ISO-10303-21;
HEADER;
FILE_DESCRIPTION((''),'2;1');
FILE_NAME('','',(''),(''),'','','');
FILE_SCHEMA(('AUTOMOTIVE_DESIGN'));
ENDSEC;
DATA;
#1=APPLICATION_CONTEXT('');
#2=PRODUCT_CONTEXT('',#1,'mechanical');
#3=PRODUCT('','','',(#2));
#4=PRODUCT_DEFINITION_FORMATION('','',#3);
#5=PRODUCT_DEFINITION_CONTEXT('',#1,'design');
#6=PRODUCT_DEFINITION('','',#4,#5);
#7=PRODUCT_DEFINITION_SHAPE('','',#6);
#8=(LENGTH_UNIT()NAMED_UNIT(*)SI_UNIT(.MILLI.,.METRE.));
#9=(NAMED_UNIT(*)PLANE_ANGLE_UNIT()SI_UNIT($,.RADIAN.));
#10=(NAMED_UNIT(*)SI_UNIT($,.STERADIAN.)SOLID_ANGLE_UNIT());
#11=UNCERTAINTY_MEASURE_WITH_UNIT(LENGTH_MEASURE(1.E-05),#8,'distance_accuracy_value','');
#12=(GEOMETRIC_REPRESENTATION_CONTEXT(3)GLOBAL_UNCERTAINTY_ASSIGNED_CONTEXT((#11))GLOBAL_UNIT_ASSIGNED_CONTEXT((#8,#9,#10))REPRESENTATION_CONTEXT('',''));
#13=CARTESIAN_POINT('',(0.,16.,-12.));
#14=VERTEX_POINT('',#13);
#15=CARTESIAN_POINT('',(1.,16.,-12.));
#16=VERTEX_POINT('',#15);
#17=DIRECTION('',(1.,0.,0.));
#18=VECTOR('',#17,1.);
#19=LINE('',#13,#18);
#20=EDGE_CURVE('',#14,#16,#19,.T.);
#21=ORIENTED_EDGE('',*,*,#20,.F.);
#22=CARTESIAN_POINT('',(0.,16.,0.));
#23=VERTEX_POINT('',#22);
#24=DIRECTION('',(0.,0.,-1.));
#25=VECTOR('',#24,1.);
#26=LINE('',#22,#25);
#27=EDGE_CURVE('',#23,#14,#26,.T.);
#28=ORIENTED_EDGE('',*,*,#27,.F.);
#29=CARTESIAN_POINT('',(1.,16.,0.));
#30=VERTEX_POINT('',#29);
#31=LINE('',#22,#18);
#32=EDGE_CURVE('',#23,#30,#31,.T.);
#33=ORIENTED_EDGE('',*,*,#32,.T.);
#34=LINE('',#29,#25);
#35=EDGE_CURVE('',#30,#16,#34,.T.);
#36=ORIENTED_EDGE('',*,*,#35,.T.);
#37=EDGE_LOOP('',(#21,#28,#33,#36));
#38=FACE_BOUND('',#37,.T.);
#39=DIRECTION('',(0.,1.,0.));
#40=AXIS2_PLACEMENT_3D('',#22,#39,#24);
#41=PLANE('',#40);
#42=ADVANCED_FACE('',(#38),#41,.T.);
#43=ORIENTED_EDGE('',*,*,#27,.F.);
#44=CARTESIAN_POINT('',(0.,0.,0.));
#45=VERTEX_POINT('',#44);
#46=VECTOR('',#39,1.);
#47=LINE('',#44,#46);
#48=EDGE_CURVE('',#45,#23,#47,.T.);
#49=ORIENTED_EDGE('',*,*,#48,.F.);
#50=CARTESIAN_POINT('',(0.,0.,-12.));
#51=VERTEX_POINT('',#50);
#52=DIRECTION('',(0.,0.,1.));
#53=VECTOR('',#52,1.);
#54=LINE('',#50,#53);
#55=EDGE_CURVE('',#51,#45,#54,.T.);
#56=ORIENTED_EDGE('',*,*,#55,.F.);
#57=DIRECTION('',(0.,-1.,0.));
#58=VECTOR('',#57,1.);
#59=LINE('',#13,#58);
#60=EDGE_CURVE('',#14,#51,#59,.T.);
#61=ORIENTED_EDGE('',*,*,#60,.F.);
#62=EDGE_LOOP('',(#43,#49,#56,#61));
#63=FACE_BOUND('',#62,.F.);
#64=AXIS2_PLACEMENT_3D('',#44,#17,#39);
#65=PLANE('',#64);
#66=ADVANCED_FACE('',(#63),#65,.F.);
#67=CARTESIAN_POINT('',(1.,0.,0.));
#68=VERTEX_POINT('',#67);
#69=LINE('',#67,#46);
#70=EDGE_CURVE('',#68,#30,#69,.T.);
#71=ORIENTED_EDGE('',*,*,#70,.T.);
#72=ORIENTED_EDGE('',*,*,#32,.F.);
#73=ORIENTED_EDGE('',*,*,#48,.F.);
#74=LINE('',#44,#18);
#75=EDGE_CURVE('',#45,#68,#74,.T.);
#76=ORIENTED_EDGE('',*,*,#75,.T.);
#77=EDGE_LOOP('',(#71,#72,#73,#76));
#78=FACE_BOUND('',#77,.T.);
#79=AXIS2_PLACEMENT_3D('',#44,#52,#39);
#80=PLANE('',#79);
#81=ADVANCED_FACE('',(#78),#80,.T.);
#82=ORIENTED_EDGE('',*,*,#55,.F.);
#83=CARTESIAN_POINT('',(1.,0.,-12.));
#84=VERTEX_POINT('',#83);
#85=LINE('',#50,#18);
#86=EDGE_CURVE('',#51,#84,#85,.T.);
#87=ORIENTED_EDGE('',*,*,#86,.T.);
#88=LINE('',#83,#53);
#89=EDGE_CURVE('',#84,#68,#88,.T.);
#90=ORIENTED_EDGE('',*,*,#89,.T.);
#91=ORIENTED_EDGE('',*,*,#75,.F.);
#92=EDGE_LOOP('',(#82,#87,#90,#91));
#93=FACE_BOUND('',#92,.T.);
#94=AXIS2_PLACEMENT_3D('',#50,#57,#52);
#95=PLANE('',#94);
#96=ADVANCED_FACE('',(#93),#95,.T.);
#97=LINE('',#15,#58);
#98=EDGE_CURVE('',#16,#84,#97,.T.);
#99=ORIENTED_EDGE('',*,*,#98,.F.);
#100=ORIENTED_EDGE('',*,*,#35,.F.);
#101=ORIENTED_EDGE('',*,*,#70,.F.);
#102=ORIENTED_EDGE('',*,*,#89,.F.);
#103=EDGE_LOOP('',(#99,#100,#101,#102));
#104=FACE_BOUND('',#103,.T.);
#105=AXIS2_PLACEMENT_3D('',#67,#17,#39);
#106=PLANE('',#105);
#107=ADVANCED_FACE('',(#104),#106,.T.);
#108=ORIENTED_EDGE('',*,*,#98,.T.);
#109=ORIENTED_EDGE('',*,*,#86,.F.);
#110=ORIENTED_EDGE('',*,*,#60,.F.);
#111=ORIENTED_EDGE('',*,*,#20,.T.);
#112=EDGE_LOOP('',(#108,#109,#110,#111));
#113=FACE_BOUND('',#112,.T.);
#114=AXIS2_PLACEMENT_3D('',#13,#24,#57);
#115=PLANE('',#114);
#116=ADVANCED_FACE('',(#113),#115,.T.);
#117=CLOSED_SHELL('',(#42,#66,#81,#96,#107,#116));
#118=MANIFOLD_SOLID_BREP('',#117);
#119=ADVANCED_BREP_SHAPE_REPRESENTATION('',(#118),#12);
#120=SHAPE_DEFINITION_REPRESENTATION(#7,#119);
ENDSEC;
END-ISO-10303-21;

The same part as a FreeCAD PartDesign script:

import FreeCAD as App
import Part
import Sketcher
from FreeCAD import Vector


def add_polygon(sketch, points):
    """Adds a closed chain of lines whose ends are joined by coincident constraints."""
    first, n = sketch.GeometryCount, len(points)
    for a, b in zip(points, points[1:] + points[:1]):
        sketch.addGeometry(Part.LineSegment(App.Vector(*a, 0), App.Vector(*b, 0)), False)
    for i in range(n):
        sketch.addConstraint(Sketcher.Constraint("Coincident", first + i, 2, first + (i + 1) % n, 1))

doc = App.newDocument("Part")
body = doc.addObject("PartDesign::Body", "Body")

# Sketch on YZ plane
sketch1 = body.newObject("Sketcher::SketchObject", "Sketch")
sketch1.AttachmentSupport = (doc.getObject("YZ_Plane"), [""])
sketch1.MapMode = "FlatFace"
add_polygon(sketch1, [(16, 0), (0, 0), (0, -12), (16, -12)])  # lines 0-3
sketch1.addConstraint(Sketcher.Constraint("Horizontal", 0))
sketch1.addConstraint(Sketcher.Constraint("Vertical", 1))
sketch1.addConstraint(Sketcher.Constraint("Horizontal", 2))
sketch1.addConstraint(Sketcher.Constraint("Vertical", 3))
sketch1.addConstraint(Sketcher.Constraint("Coincident", 0, 2, -1, 1))
sketch1.addConstraint(Sketcher.Constraint("DistanceX", 0, 2, 0, 1, 16.0))
sketch1.addConstraint(Sketcher.Constraint("DistanceY", 1, 2, 1, 1, 12.0))
pad1 = body.newObject("PartDesign::Pad", "Pad")
pad1.Profile = sketch1
pad1.Length = 1

doc.recompute()
